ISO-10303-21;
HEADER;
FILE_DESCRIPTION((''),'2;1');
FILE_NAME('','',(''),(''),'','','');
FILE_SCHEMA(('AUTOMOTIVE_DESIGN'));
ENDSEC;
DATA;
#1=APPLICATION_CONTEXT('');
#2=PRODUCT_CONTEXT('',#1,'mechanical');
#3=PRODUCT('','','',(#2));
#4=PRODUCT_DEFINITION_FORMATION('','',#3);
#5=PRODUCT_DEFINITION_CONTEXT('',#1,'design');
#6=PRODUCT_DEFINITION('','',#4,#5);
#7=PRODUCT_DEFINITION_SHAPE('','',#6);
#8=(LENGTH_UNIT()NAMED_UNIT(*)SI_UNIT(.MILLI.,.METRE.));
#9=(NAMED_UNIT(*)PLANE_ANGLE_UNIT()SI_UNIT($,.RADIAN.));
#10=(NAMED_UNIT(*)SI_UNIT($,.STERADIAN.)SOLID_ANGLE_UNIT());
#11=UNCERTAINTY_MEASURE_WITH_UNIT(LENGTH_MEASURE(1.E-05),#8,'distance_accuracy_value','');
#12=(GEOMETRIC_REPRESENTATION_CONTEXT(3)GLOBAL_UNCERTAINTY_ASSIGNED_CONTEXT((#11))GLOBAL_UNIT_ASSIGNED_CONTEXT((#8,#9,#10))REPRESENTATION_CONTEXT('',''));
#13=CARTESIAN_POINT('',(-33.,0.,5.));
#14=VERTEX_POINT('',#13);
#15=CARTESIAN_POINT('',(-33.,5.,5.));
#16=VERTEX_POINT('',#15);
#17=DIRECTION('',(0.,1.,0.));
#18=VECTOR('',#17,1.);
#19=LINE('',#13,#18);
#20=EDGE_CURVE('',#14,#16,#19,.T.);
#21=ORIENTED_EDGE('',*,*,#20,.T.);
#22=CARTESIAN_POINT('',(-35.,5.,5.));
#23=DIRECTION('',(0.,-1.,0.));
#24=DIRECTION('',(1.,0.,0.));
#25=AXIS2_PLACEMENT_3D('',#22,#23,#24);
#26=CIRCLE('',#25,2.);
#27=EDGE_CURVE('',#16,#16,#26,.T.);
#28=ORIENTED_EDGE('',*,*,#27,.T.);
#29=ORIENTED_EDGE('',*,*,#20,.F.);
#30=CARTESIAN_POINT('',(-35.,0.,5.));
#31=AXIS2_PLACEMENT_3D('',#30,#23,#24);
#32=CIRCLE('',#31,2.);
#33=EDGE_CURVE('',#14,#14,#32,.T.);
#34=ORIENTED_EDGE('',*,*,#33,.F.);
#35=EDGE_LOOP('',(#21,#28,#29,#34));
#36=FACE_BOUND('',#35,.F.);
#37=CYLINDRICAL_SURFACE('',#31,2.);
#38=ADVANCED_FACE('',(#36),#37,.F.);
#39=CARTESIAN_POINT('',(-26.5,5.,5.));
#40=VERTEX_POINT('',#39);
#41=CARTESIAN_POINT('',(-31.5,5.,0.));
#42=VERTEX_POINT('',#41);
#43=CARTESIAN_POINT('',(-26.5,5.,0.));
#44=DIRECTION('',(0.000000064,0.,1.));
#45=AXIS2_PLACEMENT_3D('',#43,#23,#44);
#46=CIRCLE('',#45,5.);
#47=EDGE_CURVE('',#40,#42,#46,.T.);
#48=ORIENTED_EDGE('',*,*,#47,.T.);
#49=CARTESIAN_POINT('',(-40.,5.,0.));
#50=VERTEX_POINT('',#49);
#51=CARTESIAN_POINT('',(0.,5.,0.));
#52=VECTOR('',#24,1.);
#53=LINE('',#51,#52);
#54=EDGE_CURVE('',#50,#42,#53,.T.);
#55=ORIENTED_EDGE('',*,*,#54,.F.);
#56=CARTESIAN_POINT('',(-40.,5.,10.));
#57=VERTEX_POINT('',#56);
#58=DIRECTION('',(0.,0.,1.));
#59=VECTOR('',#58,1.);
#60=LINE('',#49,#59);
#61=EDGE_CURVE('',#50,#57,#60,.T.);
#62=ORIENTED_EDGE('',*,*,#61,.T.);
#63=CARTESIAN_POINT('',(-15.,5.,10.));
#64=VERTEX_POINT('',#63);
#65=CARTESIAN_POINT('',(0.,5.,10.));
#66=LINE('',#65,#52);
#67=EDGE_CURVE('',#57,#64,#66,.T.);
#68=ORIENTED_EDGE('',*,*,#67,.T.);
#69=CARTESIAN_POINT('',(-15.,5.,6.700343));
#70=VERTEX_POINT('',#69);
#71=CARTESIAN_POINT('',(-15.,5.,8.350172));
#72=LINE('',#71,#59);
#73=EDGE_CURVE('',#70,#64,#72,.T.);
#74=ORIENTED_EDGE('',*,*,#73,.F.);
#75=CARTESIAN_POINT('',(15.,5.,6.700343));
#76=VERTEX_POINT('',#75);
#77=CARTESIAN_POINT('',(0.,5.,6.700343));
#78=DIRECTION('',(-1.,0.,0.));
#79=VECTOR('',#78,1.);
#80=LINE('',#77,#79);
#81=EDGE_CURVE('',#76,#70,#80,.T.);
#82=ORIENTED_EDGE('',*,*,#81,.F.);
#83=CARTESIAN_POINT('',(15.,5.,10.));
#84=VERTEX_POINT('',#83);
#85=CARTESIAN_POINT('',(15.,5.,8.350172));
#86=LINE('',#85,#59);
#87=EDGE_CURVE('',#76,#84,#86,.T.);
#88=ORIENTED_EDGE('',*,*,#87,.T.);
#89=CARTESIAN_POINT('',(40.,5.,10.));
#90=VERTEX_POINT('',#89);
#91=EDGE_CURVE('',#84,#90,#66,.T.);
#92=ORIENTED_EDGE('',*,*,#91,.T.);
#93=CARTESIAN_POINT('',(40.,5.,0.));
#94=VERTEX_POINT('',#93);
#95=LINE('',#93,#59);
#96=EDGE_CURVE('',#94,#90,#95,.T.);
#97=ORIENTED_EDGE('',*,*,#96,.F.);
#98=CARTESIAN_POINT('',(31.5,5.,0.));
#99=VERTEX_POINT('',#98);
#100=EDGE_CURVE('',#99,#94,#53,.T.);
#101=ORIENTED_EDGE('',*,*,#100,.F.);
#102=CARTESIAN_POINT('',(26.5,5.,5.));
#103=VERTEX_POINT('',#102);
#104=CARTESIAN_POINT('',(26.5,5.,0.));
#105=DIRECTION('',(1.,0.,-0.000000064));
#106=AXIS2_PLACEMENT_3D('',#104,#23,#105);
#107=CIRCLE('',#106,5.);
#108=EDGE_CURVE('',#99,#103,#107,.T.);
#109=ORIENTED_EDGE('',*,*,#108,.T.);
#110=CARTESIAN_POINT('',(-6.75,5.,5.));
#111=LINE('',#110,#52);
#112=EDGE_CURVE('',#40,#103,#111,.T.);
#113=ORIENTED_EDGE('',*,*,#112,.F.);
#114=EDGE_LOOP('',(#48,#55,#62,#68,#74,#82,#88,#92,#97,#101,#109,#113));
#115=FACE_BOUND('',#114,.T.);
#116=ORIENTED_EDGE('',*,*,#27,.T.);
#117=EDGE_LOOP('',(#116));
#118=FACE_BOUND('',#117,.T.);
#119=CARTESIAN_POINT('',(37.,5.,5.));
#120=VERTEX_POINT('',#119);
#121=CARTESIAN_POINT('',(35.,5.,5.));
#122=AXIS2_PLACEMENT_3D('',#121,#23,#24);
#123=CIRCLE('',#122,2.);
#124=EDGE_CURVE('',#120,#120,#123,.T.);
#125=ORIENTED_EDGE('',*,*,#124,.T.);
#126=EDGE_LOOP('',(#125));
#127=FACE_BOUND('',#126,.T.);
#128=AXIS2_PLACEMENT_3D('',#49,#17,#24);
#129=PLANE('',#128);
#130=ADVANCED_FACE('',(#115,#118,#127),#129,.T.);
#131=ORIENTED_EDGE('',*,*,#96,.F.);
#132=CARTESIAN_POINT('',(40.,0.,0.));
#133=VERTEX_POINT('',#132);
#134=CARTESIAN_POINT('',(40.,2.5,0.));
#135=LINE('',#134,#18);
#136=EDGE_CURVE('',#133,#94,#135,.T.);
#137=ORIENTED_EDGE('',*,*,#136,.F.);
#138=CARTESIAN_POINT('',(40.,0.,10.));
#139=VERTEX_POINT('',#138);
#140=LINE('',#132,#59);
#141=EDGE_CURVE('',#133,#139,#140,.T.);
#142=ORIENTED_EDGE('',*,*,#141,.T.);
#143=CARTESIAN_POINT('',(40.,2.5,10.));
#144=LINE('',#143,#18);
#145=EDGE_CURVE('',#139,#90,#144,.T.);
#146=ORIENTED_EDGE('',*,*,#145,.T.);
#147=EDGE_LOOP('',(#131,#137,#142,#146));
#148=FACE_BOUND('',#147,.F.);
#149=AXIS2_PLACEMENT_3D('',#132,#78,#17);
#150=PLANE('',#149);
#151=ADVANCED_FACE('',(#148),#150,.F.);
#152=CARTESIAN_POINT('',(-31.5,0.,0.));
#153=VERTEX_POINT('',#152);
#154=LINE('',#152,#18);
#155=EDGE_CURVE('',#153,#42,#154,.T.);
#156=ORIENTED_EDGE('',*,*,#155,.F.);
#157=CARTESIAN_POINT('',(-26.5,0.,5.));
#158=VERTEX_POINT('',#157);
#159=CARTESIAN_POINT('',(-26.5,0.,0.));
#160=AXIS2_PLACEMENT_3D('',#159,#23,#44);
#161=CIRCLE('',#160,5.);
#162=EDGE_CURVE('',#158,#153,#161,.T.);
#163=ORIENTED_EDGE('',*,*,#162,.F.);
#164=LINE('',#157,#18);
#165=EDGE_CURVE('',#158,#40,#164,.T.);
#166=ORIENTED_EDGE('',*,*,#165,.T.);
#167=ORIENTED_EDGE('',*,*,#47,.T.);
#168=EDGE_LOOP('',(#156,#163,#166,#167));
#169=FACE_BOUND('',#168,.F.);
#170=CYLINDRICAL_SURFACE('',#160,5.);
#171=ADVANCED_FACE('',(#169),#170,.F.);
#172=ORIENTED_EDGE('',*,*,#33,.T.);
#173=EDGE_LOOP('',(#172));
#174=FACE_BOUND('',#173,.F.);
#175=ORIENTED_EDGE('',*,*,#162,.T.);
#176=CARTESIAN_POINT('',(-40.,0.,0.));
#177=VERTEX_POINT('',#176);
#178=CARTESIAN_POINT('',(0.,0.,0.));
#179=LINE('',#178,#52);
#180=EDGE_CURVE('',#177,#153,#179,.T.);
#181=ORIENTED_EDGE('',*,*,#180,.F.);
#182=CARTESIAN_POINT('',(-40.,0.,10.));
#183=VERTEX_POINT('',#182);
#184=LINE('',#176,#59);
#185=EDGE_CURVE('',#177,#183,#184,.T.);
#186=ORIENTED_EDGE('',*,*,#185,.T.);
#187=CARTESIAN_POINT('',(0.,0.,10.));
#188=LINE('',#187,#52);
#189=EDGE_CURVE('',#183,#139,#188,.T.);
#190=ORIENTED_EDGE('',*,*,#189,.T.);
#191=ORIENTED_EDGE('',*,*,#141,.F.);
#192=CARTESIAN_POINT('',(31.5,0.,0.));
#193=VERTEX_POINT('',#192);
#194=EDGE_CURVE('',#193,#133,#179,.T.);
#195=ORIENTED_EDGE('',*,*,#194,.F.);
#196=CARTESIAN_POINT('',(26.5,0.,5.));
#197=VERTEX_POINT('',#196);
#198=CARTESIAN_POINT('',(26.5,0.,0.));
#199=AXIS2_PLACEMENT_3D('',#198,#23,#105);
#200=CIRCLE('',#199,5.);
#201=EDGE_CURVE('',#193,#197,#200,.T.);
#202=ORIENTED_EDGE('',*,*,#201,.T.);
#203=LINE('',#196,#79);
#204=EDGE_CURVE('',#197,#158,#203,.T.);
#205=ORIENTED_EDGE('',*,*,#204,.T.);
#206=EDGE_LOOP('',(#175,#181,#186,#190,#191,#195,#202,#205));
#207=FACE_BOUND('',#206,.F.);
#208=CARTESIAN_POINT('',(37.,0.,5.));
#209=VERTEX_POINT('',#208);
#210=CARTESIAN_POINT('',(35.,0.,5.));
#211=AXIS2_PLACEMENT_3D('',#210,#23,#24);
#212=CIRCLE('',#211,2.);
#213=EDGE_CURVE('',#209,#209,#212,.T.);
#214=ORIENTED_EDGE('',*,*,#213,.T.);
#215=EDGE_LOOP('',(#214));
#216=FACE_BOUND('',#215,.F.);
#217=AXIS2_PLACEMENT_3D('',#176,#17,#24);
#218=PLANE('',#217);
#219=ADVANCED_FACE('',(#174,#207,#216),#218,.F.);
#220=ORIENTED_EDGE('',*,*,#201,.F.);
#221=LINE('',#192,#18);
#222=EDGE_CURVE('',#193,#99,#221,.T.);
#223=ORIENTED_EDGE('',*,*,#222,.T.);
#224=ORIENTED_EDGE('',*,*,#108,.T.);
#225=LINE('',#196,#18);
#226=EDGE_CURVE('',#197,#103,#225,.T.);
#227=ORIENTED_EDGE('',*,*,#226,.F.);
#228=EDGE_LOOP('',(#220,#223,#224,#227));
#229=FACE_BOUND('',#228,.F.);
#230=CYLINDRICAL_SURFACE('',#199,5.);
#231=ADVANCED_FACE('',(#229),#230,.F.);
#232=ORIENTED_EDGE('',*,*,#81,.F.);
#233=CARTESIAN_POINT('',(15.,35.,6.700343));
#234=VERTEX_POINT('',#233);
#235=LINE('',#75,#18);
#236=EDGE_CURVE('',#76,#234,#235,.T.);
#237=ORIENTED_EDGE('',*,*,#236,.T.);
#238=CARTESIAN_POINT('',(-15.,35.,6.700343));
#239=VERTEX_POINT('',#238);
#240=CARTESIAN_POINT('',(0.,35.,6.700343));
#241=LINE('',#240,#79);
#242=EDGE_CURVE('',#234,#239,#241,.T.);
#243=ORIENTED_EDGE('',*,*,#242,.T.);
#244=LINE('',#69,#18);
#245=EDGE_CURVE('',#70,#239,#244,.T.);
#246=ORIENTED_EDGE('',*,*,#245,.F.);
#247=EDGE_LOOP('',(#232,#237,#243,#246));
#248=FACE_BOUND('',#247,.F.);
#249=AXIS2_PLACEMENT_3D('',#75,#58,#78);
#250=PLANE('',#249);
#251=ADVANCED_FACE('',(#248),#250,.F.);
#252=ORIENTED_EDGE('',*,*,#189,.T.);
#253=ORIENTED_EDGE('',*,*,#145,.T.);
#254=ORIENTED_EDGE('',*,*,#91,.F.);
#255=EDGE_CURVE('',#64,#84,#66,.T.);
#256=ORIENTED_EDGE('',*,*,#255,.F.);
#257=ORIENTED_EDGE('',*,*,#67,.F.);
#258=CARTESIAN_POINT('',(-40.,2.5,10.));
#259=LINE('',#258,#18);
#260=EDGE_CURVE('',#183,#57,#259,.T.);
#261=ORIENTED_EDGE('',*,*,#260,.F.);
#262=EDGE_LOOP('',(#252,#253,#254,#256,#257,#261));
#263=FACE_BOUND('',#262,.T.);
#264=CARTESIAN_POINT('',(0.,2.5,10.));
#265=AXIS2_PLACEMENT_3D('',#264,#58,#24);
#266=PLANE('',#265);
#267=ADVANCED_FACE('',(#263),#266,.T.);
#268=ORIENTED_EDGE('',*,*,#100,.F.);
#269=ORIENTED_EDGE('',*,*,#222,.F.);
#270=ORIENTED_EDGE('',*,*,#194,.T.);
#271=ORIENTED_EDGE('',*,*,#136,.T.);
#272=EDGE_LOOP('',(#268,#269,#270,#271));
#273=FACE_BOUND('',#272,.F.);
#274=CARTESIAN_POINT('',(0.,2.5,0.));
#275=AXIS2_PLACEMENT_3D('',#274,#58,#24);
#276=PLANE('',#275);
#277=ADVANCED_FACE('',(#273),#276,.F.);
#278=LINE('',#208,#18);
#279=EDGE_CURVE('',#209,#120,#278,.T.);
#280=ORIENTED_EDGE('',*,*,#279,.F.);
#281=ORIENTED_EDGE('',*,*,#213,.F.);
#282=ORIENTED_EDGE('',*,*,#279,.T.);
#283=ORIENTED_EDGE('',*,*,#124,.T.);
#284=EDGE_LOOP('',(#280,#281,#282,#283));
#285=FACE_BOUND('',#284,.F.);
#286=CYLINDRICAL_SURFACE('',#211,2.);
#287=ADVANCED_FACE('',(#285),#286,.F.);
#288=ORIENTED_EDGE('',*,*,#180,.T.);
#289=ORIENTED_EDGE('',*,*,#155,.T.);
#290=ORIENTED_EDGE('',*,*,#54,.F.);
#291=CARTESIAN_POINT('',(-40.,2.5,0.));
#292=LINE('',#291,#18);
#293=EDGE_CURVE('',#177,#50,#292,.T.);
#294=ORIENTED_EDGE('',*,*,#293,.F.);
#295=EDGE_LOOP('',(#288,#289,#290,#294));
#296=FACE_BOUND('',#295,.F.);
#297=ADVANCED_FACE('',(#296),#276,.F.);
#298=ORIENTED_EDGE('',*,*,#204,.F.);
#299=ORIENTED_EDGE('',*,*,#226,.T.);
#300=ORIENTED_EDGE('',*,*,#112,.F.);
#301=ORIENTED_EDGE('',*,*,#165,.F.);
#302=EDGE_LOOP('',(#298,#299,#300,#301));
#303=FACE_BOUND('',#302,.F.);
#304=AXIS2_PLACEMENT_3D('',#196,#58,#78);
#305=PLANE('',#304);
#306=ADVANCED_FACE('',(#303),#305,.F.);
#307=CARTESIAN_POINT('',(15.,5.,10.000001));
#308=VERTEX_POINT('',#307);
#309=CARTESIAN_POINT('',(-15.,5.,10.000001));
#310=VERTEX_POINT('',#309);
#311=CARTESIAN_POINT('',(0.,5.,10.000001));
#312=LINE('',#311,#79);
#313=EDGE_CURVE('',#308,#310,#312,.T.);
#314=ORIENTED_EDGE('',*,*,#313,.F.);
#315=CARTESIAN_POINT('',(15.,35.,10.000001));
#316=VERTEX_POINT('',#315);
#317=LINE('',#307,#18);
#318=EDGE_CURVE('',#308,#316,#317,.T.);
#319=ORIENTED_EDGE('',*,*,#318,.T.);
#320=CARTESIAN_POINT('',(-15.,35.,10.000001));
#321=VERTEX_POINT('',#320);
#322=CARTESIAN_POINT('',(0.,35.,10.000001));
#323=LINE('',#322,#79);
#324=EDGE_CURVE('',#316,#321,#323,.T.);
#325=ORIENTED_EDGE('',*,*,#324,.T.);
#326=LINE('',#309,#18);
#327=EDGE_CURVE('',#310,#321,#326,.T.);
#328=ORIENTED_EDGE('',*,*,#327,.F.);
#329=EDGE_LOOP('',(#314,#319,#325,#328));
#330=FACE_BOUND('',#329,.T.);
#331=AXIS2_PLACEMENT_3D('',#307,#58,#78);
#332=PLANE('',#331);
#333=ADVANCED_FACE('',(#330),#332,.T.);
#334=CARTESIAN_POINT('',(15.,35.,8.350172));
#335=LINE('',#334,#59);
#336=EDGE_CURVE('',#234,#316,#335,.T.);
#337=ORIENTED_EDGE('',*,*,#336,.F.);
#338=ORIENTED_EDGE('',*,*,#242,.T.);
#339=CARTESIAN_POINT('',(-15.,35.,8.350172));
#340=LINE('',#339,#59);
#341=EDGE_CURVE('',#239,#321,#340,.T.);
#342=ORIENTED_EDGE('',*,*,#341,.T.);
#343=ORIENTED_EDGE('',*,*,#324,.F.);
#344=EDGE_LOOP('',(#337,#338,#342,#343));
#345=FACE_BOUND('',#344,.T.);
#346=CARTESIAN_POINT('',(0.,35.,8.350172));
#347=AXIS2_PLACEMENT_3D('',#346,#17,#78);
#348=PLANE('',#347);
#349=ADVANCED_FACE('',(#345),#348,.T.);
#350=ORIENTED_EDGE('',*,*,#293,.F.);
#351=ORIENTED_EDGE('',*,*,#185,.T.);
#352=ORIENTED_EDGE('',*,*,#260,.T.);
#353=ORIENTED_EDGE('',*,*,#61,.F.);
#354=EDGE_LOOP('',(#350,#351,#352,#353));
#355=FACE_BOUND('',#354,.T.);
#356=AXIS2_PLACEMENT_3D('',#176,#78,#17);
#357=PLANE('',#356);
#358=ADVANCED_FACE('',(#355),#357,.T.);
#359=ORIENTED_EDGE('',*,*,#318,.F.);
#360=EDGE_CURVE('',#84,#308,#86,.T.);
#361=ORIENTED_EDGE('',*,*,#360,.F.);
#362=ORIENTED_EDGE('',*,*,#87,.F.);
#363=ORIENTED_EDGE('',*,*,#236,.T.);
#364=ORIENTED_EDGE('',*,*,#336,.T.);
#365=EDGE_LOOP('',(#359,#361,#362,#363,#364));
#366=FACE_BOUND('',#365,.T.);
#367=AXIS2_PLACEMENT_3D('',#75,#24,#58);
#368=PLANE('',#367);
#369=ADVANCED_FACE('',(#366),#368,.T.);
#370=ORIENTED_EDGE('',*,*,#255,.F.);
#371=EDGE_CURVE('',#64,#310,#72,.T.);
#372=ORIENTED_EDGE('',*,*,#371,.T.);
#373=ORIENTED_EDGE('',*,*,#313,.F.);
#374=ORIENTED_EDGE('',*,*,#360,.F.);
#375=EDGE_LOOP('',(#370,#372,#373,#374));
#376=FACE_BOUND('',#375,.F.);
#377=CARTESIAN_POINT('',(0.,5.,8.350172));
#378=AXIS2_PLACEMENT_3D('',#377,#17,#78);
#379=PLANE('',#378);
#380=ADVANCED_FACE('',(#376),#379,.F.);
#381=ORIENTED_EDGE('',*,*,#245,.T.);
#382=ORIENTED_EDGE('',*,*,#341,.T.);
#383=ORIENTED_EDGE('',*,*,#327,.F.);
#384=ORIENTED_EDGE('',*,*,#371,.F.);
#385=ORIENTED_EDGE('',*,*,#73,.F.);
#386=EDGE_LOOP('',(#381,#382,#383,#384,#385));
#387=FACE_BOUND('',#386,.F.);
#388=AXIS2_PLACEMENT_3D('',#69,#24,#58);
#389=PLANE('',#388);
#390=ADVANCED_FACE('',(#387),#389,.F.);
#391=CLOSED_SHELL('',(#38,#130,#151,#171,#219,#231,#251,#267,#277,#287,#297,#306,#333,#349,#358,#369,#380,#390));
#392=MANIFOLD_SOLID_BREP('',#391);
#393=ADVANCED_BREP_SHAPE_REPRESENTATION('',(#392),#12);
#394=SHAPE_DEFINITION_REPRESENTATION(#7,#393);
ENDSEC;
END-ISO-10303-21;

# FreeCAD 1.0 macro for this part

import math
import FreeCAD as App
import Part
import Sketcher
Q = App.Units.Quantity

doc = App.newDocument("Part")
body = doc.addObject("PartDesign::Body", "Body")

# Sketch on XY plane
sketch1 = body.newObject("Sketcher::SketchObject", "Sketch")
sketch1.AttachmentSupport = (doc.getObject("XY_Plane"), [""])
sketch1.MapMode = "FlatFace"
sketch1.addGeometry(Part.LineSegment(App.Vector(-40, 5, 0), App.Vector(-40, 0, 0)), False)
sketch1.addGeometry(Part.LineSegment(App.Vector(-40, 0, 0), App.Vector(40, 0, 0)), False)
sketch1.addGeometry(Part.LineSegment(App.Vector(40, 0, 0), App.Vector(40, 5, 0)), False)
sketch1.addGeometry(Part.LineSegment(App.Vector(40, 5, 0), App.Vector(-40, 5, 0)), False)
sketch1.addConstraint(Sketcher.Constraint("Coincident", 0, 2, 1, 1))
sketch1.addConstraint(Sketcher.Constraint("Coincident", 1, 2, 2, 1))
sketch1.addConstraint(Sketcher.Constraint("Coincident", 2, 2, 3, 1))
sketch1.addConstraint(Sketcher.Constraint("Coincident", 3, 2, 0, 1))
sketch1.addConstraint(Sketcher.Constraint("Vertical", 0))
sketch1.addConstraint(Sketcher.Constraint("Horizontal", 1))
sketch1.addConstraint(Sketcher.Constraint("Vertical", 2))
sketch1.addConstraint(Sketcher.Constraint("Horizontal", 3))
sketch1.addConstraint(Sketcher.Constraint("Symmetric", 0, 2, 1, 2, -1, 1))
sketch1.addConstraint(Sketcher.Constraint("DistanceX", 1, 1, 1, 2, Q("80 mm")))
sketch1.addConstraint(Sketcher.Constraint("DistanceY", 0, 2, 0, 1, Q("5 mm")))
pad1 = body.newObject("PartDesign::Pad", "Pad")
pad1.Profile = sketch1
pad1.Length = 10

# Sketch on XZ plane
sketch2 = body.newObject("Sketcher::SketchObject", "Sketch001")
sketch2.AttachmentSupport = (doc.getObject("XZ_Plane"), [""])
sketch2.MapMode = "FlatFace"
sketch2.addGeometry(Part.Circle(App.Vector(35, 5, 0), App.Vector(0, 0, 1), 2), False)
sketch2.addGeometry(Part.Circle(App.Vector(-35, 5, 0), App.Vector(0, 0, 1), 2), False)
sketch2.addGeometry(Part.ArcOfCircle(Part.Circle(App.Vector(-26.5, 0, 0), App.Vector(0, 0, 1), 5), math.radians(90), math.radians(180)), False)
sketch2.addGeometry(Part.LineSegment(App.Vector(-31.5, 0, 0), App.Vector(31.5, 0, 0)), False)
sketch2.addGeometry(Part.ArcOfCircle(Part.Circle(App.Vector(26.5, 0, 0), App.Vector(0, 0, 1), 5), math.radians(0), math.radians(90)), False)
sketch2.addGeometry(Part.LineSegment(App.Vector(26.5, 5, 0), App.Vector(-26.5, 5, 0)), False)
sketch2.addConstraint(Sketcher.Constraint("Coincident", 2, 2, 3, 1))
sketch2.addConstraint(Sketcher.Constraint("Coincident", 3, 2, 4, 1))
sketch2.addConstraint(Sketcher.Constraint("Tangent", 4, 2, 5, 1))
sketch2.addConstraint(Sketcher.Constraint("Tangent", 5, 2, 2, 1))
sketch2.addConstraint(Sketcher.Constraint("Horizontal", 3))
sketch2.addConstraint(Sketcher.Constraint("Horizontal", 5))
sketch2.addConstraint(Sketcher.Constraint("Equal", 0, 1))
sketch2.addConstraint(Sketcher.Constraint("Equal", 2, 4))
sketch2.addConstraint(Sketcher.Constraint("Symmetric", 2, 3, 4, 3, -1, 1))
sketch2.addConstraint(Sketcher.Constraint("Symmetric", 0, 3, 1, 3, -2))
sketch2.addConstraint(Sketcher.Constraint("PointOnObject", 2, 2, -1))
sketch2.addConstraint(Sketcher.Constraint("Horizontal", 1, 3, 4, 2))
sketch2.addConstraint(Sketcher.Constraint("Diameter", 0, Q("4 mm")))
sketch2.addConstraint(Sketcher.Constraint("Radius", 2, Q("5 mm")))
sketch2.addConstraint(Sketcher.Constraint("DistanceX", 3, 1, 3, 2, Q("63 mm")))
sketch2.addConstraint(Sketcher.Constraint("DistanceX", -1, 1, 0, 3, Q("35 mm")))
pocket1 = body.newObject("PartDesign::Pocket", "Pocket")
pocket1.Profile = sketch2
pocket1.Type = "ThroughAll"

# Sketch on XZ plane
sketch3 = body.newObject("Sketcher::SketchObject", "Sketch002")
sketch3.AttachmentSupport = (doc.getObject("XZ_Plane"), [""])
sketch3.MapMode = "FlatFace"
sketch3.AttachmentOffset = App.Placement(App.Vector(0, 0, -5), App.Rotation())
sketch3.addGeometry(Part.LineSegment(App.Vector(15, 10, 0), App.Vector(15, 6.7, 0)), False)
sketch3.addGeometry(Part.LineSegment(App.Vector(15, 6.7, 0), App.Vector(-15, 6.7, 0)), False)
sketch3.addGeometry(Part.LineSegment(App.Vector(-15, 6.7, 0), App.Vector(-15, 10, 0)), False)
sketch3.addGeometry(Part.LineSegment(App.Vector(-15, 10, 0), App.Vector(15, 10, 0)), False)
sketch3.addConstraint(Sketcher.Constraint("Coincident", 0, 2, 1, 1))
sketch3.addConstraint(Sketcher.Constraint("Coincident", 1, 2, 2, 1))
sketch3.addConstraint(Sketcher.Constraint("Coincident", 2, 2, 3, 1))
sketch3.addConstraint(Sketcher.Constraint("Coincident", 3, 2, 0, 1))
sketch3.addConstraint(Sketcher.Constraint("Vertical", 0))
sketch3.addConstraint(Sketcher.Constraint("Horizontal", 1))
sketch3.addConstraint(Sketcher.Constraint("Vertical", 2))
sketch3.addConstraint(Sketcher.Constraint("Horizontal", 3))
sketch3.addConstraint(Sketcher.Constraint("DistanceX", 1, 2, 1, 1, Q("30 mm")))
sketch3.addConstraint(Sketcher.Constraint("DistanceX", -1, 1, 0, 2, Q("15 mm")))
sketch3.addConstraint(Sketcher.Constraint("DistanceY", -1, 1, 2, 2, Q("10.000001 mm")))
sketch3.addConstraint(Sketcher.Constraint("DistanceY", 0, 2, 0, 1, Q("3.299657 mm")))
pad2 = body.newObject("PartDesign::Pad", "Pad001")
pad2.Profile = sketch3
pad2.Length = 30
pad2.Reversed = True

doc.recompute()
